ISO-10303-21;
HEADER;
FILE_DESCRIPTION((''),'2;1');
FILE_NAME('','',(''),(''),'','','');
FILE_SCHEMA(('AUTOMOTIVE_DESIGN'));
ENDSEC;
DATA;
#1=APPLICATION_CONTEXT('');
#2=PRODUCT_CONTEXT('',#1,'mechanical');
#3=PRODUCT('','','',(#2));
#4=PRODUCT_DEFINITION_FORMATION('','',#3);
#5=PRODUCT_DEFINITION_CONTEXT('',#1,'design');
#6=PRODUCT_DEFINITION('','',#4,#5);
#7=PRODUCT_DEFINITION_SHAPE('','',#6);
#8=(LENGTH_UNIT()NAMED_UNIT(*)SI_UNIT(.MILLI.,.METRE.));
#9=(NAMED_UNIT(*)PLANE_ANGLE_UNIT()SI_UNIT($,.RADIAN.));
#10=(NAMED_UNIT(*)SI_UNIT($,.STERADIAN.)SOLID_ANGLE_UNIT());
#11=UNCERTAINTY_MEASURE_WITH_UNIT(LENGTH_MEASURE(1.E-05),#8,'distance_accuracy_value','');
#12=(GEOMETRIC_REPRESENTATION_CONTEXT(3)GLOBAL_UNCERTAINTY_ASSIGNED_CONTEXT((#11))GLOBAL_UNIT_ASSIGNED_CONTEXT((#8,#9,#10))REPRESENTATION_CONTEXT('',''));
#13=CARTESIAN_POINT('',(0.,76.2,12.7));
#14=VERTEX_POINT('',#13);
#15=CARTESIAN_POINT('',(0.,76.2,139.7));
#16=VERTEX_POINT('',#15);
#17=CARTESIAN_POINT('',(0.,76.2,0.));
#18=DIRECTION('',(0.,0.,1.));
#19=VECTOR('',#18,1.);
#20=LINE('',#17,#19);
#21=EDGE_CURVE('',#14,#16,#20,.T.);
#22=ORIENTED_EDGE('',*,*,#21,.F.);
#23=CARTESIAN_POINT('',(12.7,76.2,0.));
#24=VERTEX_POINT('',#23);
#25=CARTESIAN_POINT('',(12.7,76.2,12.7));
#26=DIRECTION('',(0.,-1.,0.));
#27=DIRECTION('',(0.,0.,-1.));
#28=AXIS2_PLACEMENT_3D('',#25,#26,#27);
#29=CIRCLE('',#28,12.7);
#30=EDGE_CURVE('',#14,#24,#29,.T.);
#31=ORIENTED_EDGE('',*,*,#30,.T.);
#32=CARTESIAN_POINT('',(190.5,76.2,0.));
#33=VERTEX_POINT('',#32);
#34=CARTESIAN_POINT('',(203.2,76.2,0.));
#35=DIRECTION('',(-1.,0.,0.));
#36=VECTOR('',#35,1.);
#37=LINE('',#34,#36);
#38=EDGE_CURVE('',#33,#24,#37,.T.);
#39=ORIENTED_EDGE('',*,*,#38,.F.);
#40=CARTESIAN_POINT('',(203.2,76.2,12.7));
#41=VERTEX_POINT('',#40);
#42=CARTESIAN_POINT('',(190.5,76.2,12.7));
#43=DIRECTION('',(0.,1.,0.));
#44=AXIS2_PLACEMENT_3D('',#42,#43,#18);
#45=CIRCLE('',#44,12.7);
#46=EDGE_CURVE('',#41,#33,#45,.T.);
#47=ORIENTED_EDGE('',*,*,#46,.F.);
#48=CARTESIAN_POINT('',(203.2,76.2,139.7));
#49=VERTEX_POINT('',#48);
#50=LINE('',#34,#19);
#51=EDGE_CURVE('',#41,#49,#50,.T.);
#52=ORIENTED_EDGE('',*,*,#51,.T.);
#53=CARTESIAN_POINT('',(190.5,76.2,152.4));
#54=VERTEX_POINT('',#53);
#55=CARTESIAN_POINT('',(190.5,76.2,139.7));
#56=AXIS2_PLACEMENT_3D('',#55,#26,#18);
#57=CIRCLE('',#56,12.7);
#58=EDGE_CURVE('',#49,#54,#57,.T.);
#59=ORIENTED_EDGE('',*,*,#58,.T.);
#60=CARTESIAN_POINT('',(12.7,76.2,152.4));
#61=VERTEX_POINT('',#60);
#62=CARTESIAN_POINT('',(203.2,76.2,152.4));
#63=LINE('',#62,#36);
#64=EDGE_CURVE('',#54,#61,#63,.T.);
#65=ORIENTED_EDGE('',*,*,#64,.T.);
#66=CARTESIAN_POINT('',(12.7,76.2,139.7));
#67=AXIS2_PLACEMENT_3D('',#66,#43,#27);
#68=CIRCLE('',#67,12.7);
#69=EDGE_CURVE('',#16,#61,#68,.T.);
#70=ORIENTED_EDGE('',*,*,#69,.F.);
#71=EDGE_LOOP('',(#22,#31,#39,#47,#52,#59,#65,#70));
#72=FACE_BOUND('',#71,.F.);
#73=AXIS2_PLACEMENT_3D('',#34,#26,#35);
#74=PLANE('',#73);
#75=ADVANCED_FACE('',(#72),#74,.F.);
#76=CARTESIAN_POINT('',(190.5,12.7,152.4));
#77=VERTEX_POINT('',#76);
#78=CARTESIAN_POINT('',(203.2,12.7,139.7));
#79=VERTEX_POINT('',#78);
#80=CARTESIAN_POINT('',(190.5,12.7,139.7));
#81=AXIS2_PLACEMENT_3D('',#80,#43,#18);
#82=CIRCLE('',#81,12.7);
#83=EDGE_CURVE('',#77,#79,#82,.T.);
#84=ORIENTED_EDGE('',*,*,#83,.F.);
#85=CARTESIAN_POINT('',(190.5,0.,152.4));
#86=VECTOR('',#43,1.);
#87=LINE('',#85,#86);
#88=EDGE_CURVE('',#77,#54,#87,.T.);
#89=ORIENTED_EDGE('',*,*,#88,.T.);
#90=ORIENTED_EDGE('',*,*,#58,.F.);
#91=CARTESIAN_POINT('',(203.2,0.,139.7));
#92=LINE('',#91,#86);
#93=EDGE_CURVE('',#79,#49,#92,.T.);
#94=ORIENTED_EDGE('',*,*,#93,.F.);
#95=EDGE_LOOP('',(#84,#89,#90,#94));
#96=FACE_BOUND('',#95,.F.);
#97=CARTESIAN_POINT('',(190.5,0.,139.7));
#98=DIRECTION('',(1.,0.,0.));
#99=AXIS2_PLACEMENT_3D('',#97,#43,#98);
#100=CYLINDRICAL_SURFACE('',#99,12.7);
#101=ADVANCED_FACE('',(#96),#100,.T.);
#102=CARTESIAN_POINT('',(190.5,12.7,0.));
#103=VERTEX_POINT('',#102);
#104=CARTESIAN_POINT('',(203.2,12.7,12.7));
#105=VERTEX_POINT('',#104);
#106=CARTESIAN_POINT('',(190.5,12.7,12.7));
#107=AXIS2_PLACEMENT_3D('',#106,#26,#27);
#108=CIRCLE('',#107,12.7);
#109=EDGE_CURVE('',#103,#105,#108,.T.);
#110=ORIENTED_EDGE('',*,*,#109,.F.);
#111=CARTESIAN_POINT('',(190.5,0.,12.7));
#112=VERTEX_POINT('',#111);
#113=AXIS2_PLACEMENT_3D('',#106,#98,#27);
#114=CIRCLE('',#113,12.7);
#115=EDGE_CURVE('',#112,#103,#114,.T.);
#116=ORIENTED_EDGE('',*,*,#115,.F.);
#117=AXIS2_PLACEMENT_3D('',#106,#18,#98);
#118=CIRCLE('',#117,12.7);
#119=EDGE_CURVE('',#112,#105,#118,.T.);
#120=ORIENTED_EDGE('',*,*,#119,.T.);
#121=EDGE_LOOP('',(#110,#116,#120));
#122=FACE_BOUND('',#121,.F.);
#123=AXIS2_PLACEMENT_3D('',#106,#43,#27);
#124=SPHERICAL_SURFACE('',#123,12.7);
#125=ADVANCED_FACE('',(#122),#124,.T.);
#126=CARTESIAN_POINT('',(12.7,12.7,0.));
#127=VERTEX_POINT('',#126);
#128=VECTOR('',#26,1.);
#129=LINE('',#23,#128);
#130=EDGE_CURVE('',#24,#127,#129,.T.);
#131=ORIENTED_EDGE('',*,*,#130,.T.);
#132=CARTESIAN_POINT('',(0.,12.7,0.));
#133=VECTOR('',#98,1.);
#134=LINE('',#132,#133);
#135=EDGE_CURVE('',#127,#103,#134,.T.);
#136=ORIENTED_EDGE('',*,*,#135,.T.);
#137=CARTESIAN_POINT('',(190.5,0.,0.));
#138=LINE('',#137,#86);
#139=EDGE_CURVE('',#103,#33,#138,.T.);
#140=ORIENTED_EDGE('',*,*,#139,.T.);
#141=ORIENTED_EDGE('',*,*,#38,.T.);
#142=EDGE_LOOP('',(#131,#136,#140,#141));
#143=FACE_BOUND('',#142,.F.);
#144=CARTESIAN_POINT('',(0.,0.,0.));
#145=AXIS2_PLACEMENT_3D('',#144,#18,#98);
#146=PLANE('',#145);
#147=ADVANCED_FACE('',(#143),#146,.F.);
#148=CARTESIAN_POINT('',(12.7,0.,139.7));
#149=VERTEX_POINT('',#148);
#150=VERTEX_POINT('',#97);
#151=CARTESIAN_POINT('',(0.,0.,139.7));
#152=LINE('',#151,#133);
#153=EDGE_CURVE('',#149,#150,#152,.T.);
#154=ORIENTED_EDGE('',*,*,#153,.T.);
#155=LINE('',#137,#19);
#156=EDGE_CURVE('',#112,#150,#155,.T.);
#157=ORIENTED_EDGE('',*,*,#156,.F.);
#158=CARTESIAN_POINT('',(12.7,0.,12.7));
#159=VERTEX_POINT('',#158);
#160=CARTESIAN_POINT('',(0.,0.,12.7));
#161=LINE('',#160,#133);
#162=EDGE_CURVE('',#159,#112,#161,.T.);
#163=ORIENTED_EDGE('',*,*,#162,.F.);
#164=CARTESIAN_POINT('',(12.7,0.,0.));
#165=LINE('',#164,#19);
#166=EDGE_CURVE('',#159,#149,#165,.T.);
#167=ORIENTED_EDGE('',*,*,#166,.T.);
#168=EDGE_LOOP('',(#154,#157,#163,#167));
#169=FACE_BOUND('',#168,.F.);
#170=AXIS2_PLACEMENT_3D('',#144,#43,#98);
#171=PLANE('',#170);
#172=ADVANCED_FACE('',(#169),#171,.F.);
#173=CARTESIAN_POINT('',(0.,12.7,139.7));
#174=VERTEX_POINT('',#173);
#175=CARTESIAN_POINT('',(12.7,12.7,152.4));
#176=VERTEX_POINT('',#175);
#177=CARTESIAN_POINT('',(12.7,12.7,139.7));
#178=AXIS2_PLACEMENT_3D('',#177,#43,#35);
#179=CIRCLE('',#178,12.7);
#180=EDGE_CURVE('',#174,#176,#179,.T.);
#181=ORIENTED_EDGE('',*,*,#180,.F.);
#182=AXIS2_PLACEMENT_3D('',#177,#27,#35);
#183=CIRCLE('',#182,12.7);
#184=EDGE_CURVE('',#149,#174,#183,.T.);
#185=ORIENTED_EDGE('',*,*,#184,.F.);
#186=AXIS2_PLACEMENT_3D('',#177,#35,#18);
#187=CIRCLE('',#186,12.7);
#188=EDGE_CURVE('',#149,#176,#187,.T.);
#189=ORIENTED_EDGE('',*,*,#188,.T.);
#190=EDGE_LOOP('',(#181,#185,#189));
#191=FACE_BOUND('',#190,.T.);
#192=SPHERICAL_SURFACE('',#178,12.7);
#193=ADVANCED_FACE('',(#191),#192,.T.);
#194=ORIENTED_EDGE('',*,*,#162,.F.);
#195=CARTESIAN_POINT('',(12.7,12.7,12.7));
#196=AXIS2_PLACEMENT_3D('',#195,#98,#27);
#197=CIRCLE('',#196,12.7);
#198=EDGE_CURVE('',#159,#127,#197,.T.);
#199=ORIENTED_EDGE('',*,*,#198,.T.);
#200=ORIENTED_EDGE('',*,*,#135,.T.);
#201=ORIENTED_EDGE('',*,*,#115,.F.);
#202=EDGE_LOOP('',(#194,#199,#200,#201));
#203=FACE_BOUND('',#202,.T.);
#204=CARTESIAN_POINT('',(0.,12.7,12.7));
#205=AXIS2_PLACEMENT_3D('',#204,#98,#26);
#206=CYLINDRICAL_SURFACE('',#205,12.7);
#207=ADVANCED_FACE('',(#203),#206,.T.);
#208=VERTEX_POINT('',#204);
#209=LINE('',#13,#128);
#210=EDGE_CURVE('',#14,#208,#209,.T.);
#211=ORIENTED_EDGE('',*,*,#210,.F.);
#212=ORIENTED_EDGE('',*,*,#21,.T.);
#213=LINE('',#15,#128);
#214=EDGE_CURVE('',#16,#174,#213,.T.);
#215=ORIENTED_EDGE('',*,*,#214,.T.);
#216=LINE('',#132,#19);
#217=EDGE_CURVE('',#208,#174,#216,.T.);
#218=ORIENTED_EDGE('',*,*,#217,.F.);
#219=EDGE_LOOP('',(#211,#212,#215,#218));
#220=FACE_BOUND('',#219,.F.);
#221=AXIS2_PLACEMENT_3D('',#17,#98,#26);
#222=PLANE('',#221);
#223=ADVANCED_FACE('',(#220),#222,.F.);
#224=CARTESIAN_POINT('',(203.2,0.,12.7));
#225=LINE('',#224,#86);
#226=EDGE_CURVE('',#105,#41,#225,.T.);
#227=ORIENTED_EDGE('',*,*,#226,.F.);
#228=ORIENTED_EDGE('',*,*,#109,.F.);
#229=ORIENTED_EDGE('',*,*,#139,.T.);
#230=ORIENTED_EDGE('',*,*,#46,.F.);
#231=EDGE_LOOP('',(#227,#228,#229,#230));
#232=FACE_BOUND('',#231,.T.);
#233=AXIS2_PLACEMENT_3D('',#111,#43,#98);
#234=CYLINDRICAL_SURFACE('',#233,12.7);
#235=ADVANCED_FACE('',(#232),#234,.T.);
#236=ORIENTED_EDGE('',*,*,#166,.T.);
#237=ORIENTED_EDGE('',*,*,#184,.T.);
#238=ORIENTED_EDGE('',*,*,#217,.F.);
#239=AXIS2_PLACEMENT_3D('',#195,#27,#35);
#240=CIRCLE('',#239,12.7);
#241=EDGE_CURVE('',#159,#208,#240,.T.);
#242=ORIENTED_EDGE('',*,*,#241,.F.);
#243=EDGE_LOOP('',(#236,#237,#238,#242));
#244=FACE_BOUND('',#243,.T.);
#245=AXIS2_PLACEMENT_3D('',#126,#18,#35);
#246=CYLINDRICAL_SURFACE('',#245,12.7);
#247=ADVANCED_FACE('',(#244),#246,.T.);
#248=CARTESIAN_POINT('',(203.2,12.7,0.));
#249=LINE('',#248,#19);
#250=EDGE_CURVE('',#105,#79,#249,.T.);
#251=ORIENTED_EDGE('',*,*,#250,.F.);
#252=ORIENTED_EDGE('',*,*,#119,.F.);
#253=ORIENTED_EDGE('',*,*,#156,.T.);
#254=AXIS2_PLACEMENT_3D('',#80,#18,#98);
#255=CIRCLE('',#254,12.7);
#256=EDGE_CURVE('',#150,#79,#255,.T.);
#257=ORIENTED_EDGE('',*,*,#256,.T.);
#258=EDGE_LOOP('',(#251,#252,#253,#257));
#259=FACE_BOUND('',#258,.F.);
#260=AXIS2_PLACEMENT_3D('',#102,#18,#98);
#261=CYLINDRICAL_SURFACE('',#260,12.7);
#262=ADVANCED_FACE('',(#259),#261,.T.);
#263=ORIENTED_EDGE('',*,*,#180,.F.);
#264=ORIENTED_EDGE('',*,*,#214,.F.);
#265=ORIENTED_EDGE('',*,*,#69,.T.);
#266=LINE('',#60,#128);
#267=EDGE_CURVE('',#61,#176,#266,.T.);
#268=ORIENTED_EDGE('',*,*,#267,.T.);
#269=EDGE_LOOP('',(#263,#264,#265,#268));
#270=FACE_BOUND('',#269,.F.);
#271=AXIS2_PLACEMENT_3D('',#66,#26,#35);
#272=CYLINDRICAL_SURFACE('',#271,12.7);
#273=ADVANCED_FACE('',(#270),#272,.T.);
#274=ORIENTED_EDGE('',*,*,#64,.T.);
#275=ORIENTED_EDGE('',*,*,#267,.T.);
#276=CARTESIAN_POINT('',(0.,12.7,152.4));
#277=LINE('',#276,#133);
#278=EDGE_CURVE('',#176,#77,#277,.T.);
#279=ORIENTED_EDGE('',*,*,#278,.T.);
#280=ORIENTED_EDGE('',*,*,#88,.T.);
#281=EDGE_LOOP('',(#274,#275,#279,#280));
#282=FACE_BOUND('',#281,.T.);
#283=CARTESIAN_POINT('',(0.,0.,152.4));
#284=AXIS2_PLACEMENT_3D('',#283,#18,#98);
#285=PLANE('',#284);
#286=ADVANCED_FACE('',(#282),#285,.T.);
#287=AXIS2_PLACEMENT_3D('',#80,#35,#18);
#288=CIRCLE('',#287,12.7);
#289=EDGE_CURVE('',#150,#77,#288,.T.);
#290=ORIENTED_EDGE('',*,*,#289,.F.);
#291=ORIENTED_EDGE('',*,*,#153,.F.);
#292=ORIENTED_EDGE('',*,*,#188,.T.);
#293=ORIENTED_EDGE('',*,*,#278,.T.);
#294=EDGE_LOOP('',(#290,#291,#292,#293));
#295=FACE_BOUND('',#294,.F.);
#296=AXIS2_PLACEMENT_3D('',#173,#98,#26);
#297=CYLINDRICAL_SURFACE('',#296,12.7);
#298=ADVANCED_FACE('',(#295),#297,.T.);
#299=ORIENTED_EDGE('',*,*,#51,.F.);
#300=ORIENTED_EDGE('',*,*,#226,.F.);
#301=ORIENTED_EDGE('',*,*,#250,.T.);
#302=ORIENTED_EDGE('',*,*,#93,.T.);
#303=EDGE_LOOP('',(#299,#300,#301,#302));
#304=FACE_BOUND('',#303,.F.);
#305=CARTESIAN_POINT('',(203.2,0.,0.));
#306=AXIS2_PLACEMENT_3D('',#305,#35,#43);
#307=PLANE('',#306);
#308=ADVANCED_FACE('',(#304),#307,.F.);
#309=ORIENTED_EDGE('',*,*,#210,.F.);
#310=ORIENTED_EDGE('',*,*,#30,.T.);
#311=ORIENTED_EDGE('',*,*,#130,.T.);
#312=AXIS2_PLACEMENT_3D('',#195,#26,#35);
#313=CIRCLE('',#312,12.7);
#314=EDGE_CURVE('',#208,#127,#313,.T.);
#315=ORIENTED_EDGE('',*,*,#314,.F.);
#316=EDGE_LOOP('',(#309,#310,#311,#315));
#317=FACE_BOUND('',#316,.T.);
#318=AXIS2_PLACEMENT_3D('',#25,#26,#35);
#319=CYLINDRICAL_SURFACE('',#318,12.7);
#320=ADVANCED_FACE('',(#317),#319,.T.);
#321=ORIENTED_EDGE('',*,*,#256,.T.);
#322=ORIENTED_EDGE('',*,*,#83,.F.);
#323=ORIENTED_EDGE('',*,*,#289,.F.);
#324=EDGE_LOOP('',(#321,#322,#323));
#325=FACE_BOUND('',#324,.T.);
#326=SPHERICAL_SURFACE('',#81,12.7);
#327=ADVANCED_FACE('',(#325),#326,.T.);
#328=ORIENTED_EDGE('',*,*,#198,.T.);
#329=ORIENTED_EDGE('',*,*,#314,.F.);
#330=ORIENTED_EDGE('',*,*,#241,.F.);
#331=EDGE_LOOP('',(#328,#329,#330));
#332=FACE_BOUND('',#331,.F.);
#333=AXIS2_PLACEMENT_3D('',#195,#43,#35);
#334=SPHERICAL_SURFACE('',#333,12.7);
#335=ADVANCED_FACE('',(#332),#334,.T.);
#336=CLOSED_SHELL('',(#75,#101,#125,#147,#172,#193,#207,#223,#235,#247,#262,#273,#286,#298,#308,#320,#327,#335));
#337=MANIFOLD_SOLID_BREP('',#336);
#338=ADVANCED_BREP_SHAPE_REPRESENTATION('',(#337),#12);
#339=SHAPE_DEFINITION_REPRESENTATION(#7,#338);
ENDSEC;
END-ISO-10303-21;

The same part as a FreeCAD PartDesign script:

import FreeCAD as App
import Part
import Sketcher

V = App.Vector
Q = App.Units.Quantity


def edges_at(feature, points):
    """Names of the edges that pass closest to the given points."""
    edges = feature.Shape.Edges
    near = lambda p: min(range(len(edges)), key=lambda i: edges[i].distToShape(Part.Vertex(*p))[0])
    return sorted({f"Edge{near(p) + 1}" for p in points})


def add_polygon(sketch, points):
    """Adds a closed chain of lines whose ends are joined by coincident constraints."""
    first, n = sketch.GeometryCount, len(points)
    for a, b in zip(points, points[1:] + points[:1]):
        sketch.addGeometry(Part.LineSegment(App.Vector(*a, 0), App.Vector(*b, 0)), False)
    for i in range(n):
        sketch.addConstraint(Sketcher.Constraint("Coincident", first + i, 2, first + (i + 1) % n, 1))

doc = App.newDocument("Part")
body = doc.addObject("PartDesign::Body", "Body")

sketch1 = body.newObject("Sketcher::SketchObject", "Sketch")
sketch1.AttachmentSupport = (doc.getObject("XY_Plane"), [""])
sketch1.MapMode = "FlatFace"
add_polygon(sketch1, [(0, 76.2), (0, 0), (203.2, 0), (203.2, 76.2)])
sketch1.addConstraint([
    Sketcher.Constraint("Vertical", 0),
    Sketcher.Constraint("Horizontal", 1),
    Sketcher.Constraint("Vertical", 2),
    Sketcher.Constraint("Horizontal", 3),
    Sketcher.Constraint("Coincident", 0, 2, -1, 1),
    Sketcher.Constraint("DistanceX", 1, 1, 1, 2, Q("8 in")),
    Sketcher.Constraint("DistanceY", 0, 2, 0, 1, Q("3 in")),
])
pad1 = body.newObject("PartDesign::Pad", "Pad")
pad1.Profile = sketch1
pad1.Length = Q("6 in")
doc.recompute()

fillet = body.newObject("PartDesign::Fillet", "Fillet")
fillet.Base = (pad1, edges_at(pad1, [
    (0, 38.1, 152.4),
    (203.2, 38.1, 152.4),
    (203.2, 38.1, 0),
    (0, 38.1, 0),
    (0, 0, 76.2),
    (101.6, 0, 152.4),
    (101.6, 0, 0),
    (203.2, 0, 76.2),
]))
fillet.Radius = Q("0.5 in")

doc.recompute()
